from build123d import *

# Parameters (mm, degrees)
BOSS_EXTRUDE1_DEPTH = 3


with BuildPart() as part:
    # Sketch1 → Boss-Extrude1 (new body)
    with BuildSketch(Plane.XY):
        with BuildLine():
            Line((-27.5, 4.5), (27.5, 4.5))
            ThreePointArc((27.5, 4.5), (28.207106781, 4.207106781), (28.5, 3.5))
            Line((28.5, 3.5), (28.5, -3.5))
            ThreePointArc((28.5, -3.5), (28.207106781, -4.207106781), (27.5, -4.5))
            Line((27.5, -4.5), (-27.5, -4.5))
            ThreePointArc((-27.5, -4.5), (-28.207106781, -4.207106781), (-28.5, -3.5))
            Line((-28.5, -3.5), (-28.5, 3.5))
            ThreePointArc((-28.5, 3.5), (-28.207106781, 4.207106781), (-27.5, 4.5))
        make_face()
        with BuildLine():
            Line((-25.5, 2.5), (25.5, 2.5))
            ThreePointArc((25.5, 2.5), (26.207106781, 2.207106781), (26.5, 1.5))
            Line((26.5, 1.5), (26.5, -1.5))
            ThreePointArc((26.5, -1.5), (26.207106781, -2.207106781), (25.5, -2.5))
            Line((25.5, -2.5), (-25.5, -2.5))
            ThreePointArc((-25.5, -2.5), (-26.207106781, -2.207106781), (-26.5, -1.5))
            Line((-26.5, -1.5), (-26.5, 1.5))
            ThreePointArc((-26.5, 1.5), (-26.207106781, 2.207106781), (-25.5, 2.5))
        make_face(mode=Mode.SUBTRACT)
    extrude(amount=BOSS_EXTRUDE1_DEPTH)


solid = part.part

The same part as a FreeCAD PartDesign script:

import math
import FreeCAD as App
import Part
import Sketcher

V = App.Vector

doc = App.newDocument("Part")
body = doc.addObject("PartDesign::Body", "Body")

sketch1 = doc.addObject("Sketcher::SketchObject", "Sketch")
body.addObject(sketch1)
sketch1.AttachmentSupport = (doc.XY_Plane, [""])
sketch1.MapMode = "FlatFace"
sketch1.addGeometry([
    Part.LineSegment(V(27.5, 4.5, 0), V(-27.5, 4.5, 0)),
    Part.ArcOfCircle(Part.Circle(V(-27.5, 3.5, 0), V(0, 0, 1), 1), math.radians(90), math.radians(180)),
    Part.LineSegment(V(-28.5, 3.5, 0), V(-28.5, -3.5, 0)),
    Part.ArcOfCircle(Part.Circle(V(-27.5, -3.5, 0), V(0, 0, 1), 1), math.radians(-180), math.radians(-90)),
    Part.LineSegment(V(-27.5, -4.5, 0), V(27.5, -4.5, 0)),
    Part.ArcOfCircle(Part.Circle(V(27.5, -3.5, 0), V(0, 0, 1), 1), math.radians(-90), math.radians(0)),
    Part.LineSegment(V(28.5, -3.5, 0), V(28.5, 3.5, 0)),
    Part.ArcOfCircle(Part.Circle(V(27.5, 3.5, 0), V(0, 0, 1), 1), math.radians(0), math.radians(90)),
    Part.LineSegment(V(-25.5, 2.5, 0), V(25.5, 2.5, 0)),
    Part.ArcOfCircle(Part.Circle(V(25.5, 1.5, 0), V(0, 0, 1), 1), math.radians(0), math.radians(90)),
    Part.LineSegment(V(26.5, 1.5, 0), V(26.5, -1.5, 0)),
    Part.ArcOfCircle(Part.Circle(V(25.5, -1.5, 0), V(0, 0, 1), 1), math.radians(-90), math.radians(0)),
    Part.LineSegment(V(25.5, -2.5, 0), V(-25.5, -2.5, 0)),
    Part.ArcOfCircle(Part.Circle(V(-25.5, -1.5, 0), V(0, 0, 1), 1), math.radians(-180), math.radians(-90)),
    Part.LineSegment(V(-26.5, -1.5, 0), V(-26.5, 1.5, 0)),
    Part.ArcOfCircle(Part.Circle(V(-25.5, 1.5, 0), V(0, 0, 1), 1), math.radians(90), math.radians(180)),
], False)
sketch1.addConstraint([
    Sketcher.Constraint("Tangent", 0, 2, 1, 1),
    Sketcher.Constraint("Tangent", 1, 2, 2, 1),
    Sketcher.Constraint("Tangent", 2, 2, 3, 1),
    Sketcher.Constraint("Tangent", 3, 2, 4, 1),
    Sketcher.Constraint("Tangent", 4, 2, 5, 1),
    Sketcher.Constraint("Tangent", 5, 2, 6, 1),
    Sketcher.Constraint("Tangent", 6, 2, 7, 1),
    Sketcher.Constraint("Tangent", 7, 2, 0, 1),
    Sketcher.Constraint("Tangent", 8, 2, 9, 2),
    Sketcher.Constraint("Tangent", 9, 1, 10, 1),
    Sketcher.Constraint("Tangent", 10, 2, 11, 2),
    Sketcher.Constraint("Tangent", 11, 1, 12, 1),
    Sketcher.Constraint("Tangent", 12, 2, 13, 2),
    Sketcher.Constraint("Tangent", 13, 1, 14, 1),
    Sketcher.Constraint("Tangent", 14, 2, 15, 2),
    Sketcher.Constraint("Tangent", 15, 1, 8, 1),
    Sketcher.Constraint("Horizontal", 0),
    Sketcher.Constraint("Vertical", 2),
    Sketcher.Constraint("Horizontal", 4),
    Sketcher.Constraint("Vertical", 6),
    Sketcher.Constraint("Horizontal", 8),
    Sketcher.Constraint("Vertical", 10),
    Sketcher.Constraint("Horizontal", 12),
    Sketcher.Constraint("Vertical", 14),
    Sketcher.Constraint("Equal", 1, 3),
    Sketcher.Constraint("Equal", 3, 5),
    Sketcher.Constraint("Equal", 5, 7),
    Sketcher.Constraint("Equal", 7, 9),
    Sketcher.Constraint("Equal", 9, 11),
    Sketcher.Constraint("Equal", 11, 13),
    Sketcher.Constraint("Equal", 13, 15),
    Sketcher.Constraint("Symmetric", 1, 3, 5, 3, -1, 1),
    Sketcher.Constraint("Symmetric", 9, 3, 13, 3, -1, 1),
    Sketcher.Constraint("Radius", 1, 1.0),
    Sketcher.Constraint("DistanceX", 0, 2, 0, 1, 55.0),
    Sketcher.Constraint("DistanceX", 8, 1, 8, 2, 51.0),
    Sketcher.Constraint("DistanceY", 2, 2, 2, 1, 7.0),
    Sketcher.Constraint("DistanceY", 10, 2, 10, 1, 3.0),
])
pad1 = doc.addObject("PartDesign::Pad", "Pad")
body.addObject(pad1)
pad1.Profile = sketch1
pad1.Length = 3

doc.recompute()
